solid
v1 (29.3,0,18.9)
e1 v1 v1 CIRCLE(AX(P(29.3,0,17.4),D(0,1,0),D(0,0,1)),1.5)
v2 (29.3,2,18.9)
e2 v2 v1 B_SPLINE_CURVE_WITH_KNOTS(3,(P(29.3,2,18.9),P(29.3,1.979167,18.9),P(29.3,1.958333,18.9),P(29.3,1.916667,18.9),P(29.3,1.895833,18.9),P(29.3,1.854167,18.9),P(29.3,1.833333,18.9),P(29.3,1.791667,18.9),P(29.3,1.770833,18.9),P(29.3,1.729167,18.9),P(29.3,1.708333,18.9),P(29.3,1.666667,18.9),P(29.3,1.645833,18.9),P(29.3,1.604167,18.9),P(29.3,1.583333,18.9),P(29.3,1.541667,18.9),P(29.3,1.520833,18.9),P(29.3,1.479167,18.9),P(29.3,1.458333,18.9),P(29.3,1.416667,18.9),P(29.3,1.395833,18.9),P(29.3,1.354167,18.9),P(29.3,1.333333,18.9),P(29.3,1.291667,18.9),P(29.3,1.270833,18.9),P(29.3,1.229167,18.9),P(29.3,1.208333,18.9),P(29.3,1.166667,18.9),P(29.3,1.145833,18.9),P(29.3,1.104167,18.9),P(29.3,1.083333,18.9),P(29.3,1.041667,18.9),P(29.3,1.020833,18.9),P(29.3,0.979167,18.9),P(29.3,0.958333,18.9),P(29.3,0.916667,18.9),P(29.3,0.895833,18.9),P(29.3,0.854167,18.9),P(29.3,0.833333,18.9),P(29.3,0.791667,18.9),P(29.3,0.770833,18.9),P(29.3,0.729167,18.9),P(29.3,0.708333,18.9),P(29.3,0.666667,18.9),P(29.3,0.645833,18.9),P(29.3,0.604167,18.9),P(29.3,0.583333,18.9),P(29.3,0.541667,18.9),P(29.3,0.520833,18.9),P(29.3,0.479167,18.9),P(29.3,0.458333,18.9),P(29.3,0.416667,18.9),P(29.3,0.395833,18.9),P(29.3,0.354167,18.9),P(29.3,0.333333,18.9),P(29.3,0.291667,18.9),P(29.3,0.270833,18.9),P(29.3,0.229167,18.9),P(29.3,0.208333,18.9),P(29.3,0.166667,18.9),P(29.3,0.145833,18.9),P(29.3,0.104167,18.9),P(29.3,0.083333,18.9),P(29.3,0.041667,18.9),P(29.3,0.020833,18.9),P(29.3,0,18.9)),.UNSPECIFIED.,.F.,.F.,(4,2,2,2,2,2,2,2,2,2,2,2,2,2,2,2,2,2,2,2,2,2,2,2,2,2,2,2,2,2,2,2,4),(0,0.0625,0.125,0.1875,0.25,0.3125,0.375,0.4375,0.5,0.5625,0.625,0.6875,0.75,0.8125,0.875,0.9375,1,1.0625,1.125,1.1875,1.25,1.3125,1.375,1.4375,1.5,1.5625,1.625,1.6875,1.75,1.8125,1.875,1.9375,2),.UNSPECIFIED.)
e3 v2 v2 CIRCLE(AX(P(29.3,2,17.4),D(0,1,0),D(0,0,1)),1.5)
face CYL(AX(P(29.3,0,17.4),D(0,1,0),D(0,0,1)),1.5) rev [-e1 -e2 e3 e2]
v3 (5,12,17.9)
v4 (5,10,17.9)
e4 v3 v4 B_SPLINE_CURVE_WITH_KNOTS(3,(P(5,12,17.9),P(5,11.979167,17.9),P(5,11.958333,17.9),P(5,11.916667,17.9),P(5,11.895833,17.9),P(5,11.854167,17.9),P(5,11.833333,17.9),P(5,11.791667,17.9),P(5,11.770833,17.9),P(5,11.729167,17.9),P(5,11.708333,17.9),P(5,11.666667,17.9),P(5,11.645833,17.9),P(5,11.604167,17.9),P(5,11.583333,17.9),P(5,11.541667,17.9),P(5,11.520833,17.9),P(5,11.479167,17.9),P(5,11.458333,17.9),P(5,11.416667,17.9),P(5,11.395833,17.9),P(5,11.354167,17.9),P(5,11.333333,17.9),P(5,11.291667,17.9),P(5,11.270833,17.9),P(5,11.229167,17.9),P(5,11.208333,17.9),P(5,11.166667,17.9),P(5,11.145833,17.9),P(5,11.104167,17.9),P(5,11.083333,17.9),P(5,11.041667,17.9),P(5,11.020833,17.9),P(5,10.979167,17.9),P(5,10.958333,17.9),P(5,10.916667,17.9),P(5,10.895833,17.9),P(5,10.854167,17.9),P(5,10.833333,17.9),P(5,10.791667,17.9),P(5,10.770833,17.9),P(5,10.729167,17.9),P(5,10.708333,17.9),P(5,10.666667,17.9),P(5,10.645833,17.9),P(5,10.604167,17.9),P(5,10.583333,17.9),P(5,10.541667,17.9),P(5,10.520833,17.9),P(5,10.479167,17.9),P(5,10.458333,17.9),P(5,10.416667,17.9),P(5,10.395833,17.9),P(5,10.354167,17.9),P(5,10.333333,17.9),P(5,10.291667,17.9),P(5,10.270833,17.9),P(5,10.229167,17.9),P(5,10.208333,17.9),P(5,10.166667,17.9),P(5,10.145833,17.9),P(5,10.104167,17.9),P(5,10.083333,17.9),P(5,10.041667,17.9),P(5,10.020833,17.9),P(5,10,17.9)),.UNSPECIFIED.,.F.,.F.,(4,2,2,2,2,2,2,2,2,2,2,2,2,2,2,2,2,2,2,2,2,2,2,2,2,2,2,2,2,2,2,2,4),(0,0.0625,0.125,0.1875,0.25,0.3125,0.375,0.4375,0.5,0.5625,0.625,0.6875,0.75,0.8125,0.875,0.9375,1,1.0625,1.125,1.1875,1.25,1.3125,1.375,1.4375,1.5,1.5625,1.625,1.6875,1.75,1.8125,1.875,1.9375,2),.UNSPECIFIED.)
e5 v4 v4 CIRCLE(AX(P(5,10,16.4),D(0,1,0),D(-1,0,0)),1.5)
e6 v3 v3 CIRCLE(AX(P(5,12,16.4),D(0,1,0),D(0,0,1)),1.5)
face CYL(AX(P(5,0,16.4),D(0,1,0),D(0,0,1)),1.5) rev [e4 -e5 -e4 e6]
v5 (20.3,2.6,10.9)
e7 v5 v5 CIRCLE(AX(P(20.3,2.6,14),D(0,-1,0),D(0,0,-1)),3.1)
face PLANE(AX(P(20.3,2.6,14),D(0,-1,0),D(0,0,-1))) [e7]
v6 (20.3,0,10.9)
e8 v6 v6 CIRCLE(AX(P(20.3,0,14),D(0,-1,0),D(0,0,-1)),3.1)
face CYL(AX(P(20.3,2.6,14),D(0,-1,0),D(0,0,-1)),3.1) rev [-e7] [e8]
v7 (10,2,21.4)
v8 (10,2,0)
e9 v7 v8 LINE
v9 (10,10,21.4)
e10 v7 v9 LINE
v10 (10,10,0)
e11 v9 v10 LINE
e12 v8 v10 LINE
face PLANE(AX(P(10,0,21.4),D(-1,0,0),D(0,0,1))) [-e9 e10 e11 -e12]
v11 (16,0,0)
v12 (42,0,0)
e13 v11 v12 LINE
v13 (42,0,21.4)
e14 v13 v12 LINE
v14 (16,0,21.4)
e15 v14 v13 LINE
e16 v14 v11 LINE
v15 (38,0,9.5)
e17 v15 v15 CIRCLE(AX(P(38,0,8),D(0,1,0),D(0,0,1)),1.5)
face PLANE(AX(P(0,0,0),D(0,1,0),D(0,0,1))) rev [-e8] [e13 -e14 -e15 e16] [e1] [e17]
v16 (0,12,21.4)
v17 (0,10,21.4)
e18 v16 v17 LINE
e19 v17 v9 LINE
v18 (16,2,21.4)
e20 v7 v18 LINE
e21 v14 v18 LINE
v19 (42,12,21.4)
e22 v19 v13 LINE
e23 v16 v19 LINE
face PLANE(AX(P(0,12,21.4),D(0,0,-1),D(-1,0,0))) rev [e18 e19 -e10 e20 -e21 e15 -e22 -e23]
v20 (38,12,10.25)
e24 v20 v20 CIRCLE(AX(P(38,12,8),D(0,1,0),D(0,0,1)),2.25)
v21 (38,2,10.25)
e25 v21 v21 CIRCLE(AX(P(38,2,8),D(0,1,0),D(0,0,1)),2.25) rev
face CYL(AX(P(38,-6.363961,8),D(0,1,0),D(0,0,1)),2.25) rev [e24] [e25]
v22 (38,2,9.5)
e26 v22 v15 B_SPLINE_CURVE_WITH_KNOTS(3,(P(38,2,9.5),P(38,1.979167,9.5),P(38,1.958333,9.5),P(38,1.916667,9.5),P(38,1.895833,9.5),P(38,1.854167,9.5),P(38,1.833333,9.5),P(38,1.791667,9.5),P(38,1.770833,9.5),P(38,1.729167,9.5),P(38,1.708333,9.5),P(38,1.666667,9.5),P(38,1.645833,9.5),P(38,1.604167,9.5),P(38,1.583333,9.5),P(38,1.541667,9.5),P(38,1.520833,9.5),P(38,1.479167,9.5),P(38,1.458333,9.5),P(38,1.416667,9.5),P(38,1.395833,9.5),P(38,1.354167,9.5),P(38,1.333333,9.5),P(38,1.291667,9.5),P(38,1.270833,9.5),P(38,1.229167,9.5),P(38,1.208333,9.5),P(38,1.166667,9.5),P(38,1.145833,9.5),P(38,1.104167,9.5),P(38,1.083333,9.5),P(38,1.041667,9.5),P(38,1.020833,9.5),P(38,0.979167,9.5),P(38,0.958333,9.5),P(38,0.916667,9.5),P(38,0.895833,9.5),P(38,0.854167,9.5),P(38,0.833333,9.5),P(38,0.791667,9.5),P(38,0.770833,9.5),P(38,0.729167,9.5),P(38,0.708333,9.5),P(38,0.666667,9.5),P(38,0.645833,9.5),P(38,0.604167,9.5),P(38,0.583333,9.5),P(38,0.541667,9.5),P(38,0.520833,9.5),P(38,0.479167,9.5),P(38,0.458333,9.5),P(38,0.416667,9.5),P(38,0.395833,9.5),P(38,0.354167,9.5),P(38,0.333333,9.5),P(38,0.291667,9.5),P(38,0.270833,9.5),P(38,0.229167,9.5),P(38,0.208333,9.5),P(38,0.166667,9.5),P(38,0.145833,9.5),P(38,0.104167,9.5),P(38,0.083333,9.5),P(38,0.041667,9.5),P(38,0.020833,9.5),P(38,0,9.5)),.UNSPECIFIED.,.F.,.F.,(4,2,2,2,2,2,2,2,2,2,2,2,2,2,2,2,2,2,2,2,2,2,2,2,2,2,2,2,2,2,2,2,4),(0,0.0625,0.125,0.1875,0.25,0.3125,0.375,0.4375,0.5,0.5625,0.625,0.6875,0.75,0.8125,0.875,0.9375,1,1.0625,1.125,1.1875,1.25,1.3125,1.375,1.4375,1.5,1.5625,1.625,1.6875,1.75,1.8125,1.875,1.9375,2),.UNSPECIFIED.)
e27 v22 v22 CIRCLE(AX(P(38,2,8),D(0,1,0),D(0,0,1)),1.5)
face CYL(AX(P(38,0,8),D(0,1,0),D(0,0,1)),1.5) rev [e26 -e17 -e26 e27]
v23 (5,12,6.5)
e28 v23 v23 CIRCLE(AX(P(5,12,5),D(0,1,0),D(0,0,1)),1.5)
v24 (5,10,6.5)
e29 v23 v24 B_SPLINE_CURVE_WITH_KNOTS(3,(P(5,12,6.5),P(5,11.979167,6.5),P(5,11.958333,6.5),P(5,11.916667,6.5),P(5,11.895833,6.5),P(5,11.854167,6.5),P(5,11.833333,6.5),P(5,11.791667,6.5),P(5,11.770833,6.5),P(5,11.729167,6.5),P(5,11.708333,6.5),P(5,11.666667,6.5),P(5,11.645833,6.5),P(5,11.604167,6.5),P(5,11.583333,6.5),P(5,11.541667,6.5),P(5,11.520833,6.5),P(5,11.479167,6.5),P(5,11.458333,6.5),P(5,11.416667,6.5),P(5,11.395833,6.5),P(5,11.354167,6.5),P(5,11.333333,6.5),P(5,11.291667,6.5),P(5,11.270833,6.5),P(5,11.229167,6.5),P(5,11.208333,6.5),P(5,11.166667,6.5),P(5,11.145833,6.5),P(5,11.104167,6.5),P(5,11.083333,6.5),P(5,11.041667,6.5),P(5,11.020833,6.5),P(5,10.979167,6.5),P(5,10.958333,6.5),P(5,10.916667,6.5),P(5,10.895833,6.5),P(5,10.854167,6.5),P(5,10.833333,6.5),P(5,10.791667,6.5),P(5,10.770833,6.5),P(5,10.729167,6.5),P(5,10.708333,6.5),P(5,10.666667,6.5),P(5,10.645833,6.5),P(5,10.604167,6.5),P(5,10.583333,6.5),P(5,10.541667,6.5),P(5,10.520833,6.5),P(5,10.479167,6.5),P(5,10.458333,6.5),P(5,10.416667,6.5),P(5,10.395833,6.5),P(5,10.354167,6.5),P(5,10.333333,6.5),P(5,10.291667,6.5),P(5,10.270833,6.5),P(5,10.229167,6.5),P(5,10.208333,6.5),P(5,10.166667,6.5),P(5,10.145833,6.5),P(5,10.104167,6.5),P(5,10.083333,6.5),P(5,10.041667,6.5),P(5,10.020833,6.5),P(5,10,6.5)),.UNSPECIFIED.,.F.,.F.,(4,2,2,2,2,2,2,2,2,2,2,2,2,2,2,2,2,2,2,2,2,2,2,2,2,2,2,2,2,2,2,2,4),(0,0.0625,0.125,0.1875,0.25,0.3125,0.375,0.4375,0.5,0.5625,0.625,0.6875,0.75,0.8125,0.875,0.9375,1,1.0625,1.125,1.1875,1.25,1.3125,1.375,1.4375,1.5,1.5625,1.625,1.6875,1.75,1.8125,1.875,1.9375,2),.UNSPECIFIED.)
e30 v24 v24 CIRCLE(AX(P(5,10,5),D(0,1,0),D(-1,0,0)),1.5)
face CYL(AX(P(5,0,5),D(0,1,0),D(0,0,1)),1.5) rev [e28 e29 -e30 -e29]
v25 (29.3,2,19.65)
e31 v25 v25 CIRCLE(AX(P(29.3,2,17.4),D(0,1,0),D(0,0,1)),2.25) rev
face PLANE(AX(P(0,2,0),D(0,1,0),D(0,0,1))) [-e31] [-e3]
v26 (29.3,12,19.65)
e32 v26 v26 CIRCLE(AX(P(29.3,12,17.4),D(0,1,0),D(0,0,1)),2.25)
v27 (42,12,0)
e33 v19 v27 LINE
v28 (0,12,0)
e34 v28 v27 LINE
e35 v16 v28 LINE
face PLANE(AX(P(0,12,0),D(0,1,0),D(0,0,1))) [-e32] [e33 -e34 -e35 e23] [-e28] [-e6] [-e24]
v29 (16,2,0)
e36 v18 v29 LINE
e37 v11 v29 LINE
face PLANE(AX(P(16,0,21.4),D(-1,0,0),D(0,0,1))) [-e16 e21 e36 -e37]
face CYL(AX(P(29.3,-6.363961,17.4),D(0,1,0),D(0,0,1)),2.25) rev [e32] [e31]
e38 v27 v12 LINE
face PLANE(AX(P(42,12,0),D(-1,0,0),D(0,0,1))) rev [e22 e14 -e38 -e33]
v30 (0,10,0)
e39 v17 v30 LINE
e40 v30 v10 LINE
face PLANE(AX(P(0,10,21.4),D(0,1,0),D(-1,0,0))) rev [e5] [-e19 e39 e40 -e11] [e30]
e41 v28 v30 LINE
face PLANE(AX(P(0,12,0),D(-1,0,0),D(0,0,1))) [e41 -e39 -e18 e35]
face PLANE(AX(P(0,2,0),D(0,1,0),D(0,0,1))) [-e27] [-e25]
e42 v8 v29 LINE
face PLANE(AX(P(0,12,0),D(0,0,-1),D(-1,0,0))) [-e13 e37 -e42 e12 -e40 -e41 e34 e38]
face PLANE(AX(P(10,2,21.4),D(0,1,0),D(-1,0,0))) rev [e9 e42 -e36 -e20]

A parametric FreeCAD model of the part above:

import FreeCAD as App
import Part
import Sketcher
Q = App.Units.Quantity

doc = App.newDocument("Part")
body = doc.addObject("PartDesign::Body", "Body")

# Sketch on XZ plane
sketch1 = body.newObject("Sketcher::SketchObject", "Sketch")
sketch1.AttachmentSupport = (doc.getObject("XZ_Plane"), [""])
sketch1.MapMode = "FlatFace"
sketch1.addGeometry([
    Part.LineSegment(App.Vector(0, 0, 0), App.Vector(0, 21, 0)),
    Part.LineSegment(App.Vector(0, 21, 0), App.Vector(42, 21, 0)),
    Part.LineSegment(App.Vector(42, 21, 0), App.Vector(42, 0, 0)),
    Part.LineSegment(App.Vector(42, 0, 0), App.Vector(0, 0, 0)),
], False)
sketch1.addConstraint([
    Sketcher.Constraint("Coincident", 0, 2, 1, 1),
    Sketcher.Constraint("Coincident", 1, 2, 2, 1),
    Sketcher.Constraint("Coincident", 2, 2, 3, 1),
    Sketcher.Constraint("Coincident", 3, 2, 0, 1),
    Sketcher.Constraint("Vertical", 0),
    Sketcher.Constraint("Horizontal", 1),
    Sketcher.Constraint("Vertical", 2),
    Sketcher.Constraint("Horizontal", 3),
    Sketcher.Constraint("Coincident", 3, 2, -1, 1),
    Sketcher.Constraint("DistanceX", 1, 1, 1, 2, Q("42 mm")),
    Sketcher.Constraint("DistanceY", 0, 1, 0, 2, Q("21.4 mm")),
])
pad1 = body.newObject("PartDesign::Pad", "Pad")
pad1.Profile = sketch1
pad1.Length = 12
pad1.Reversed = True

# Sketch on XY plane
sketch2 = body.newObject("Sketcher::SketchObject", "Sketch001")
sketch2.AttachmentSupport = (doc.getObject("XY_Plane"), [""])
sketch2.MapMode = "FlatFace"
sketch2.addGeometry([
    Part.LineSegment(App.Vector(0, 0, 0), App.Vector(0, 10, 0)),  # 0
    Part.LineSegment(App.Vector(0, 10, 0), App.Vector(10, 10, 0)),  # 1
    Part.LineSegment(App.Vector(10, 10, 0), App.Vector(10, 2, 0)),  # 2
    Part.LineSegment(App.Vector(10, 2, 0), App.Vector(16, 2, 0)),  # 3
    Part.LineSegment(App.Vector(16, 2, 0), App.Vector(16, 0, 0)),  # 4
    Part.LineSegment(App.Vector(16, 0, 0), App.Vector(0, 0, 0)),  # 5
], False)
sketch2.addConstraint([
    Sketcher.Constraint("Coincident", 0, 2, 1, 1),
    Sketcher.Constraint("Coincident", 1, 2, 2, 1),
    Sketcher.Constraint("Coincident", 2, 2, 3, 1),
    Sketcher.Constraint("Coincident", 3, 2, 4, 1),
    Sketcher.Constraint("Coincident", 4, 2, 5, 1),
    Sketcher.Constraint("Coincident", 5, 2, 0, 1),
    Sketcher.Constraint("Vertical", 0),
    Sketcher.Constraint("Horizontal", 1),
    Sketcher.Constraint("Vertical", 2),
    Sketcher.Constraint("Horizontal", 3),
    Sketcher.Constraint("Vertical", 4),
    Sketcher.Constraint("Horizontal", 5),
    Sketcher.Constraint("Coincident", 5, 2, -1, 1),
    Sketcher.Constraint("Equal", 1, 0),
    Sketcher.Constraint("DistanceX", 1, 1, 1, 2, Q("10 mm")),
    Sketcher.Constraint("DistanceX", 3, 1, 3, 2, Q("6 mm")),
    Sketcher.Constraint("DistanceY", 2, 2, 2, 1, Q("8 mm")),
])
pocket1 = body.newObject("PartDesign::Pocket", "Pocket")
pocket1.Profile = sketch2
pocket1.Type = "ThroughAll"
pocket1.Reversed = True

# Sketch on XZ plane
sketch3 = body.newObject("Sketcher::SketchObject", "Sketch002")
sketch3.AttachmentSupport = (doc.getObject("XZ_Plane"), [""])
sketch3.MapMode = "FlatFace"
sketch3.addGeometry(Part.Circle(App.Vector(20.3, 14, 0), App.Vector(0, 0, 1), 3.1), False)
sketch3.addConstraint([
    Sketcher.Constraint("Diameter", 0, Q("6.2 mm")),
    Sketcher.Constraint("DistanceY", -1, 1, 0, 3, Q("14 mm")),
    Sketcher.Constraint("DistanceX", -1, 1, 0, 3, Q("20.3 mm")),
])
pocket2 = body.newObject("PartDesign::Pocket", "Pocket001")
pocket2.Profile = sketch3
pocket2.Length = 2.6

# Sketch on XZ plane
sketch4 = body.newObject("Sketcher::SketchObject", "Sketch003")
sketch4.AttachmentSupport = (doc.getObject("XZ_Plane"), [""])
sketch4.MapMode = "FlatFace"
sketch4.AttachmentOffset = App.Placement(App.Vector(0, 0, -12), App.Rotation())
sketch4.addGeometry([
    Part.Circle(App.Vector(29.3, 17.4, 0), App.Vector(0, 0, 1), 2.2),
    Part.Circle(App.Vector(38, 8, 0), App.Vector(0, 0, 1), 2.2),
], False)
sketch4.addConstraint([
    Sketcher.Constraint("Equal", 0, 1),
    Sketcher.Constraint("Diameter", 0, Q("4.5 mm")),
    Sketcher.Constraint("DistanceX", -1, 1, 1, 3, Q("38 mm")),
    Sketcher.Constraint("DistanceY", -1, 1, 1, 3, Q("8 mm")),
    Sketcher.Constraint("DistanceX", -1, 1, 0, 3, Q("29.3 mm")),
    Sketcher.Constraint("DistanceY", -1, 1, 0, 3, Q("17.4 mm")),
])
pocket3 = body.newObject("PartDesign::Pocket", "Pocket002")
pocket3.Profile = sketch4
pocket3.Length = 10
pocket3.Reversed = True

# Sketch on XZ plane
sketch5 = body.newObject("Sketcher::SketchObject", "Sketch004")
sketch5.AttachmentSupport = (doc.getObject("XZ_Plane"), [""])
sketch5.MapMode = "FlatFace"
sketch5.AttachmentOffset = App.Placement(App.Vector(0, 0, -12), App.Rotation())
sketch5.addGeometry([
    Part.Circle(App.Vector(5, 5, 0), App.Vector(0, 0, 1), 1.5),
    Part.Circle(App.Vector(5, 16.4, 0), App.Vector(0, 0, 1), 1.5),
    Part.Circle(App.Vector(38, 8, 0), App.Vector(0, 0, 1), 1.5),
    Part.Circle(App.Vector(29.3, 17.4, 0), App.Vector(0, 0, 1), 1.5),
], False)
sketch5.addConstraint([
    Sketcher.Constraint("Equal", 0, 1),
    Sketcher.Constraint("Equal", 1, 2),
    Sketcher.Constraint("Equal", 2, 3),
    Sketcher.Constraint("Vertical", 0, 3, 1, 3),
    Sketcher.Constraint("Diameter", 0, Q("3 mm")),
    Sketcher.Constraint("DistanceX", -1, 1, 0, 3, Q("5 mm")),
    Sketcher.Constraint("DistanceY", -1, 1, 0, 3, Q("5 mm")),
    Sketcher.Constraint("DistanceX", -1, 1, 2, 3, Q("38 mm")),
    Sketcher.Constraint("DistanceY", -1, 1, 2, 3, Q("8 mm")),
    Sketcher.Constraint("DistanceY", 1, 3, 3, 3, Q("1 mm")),
    Sketcher.Constraint("DistanceY", -1, 1, 1, 3, Q("16.4 mm")),
    Sketcher.Constraint("DistanceX", -1, 1, 3, 3, Q("29.3 mm")),
])
pocket4 = body.newObject("PartDesign::Pocket", "Pocket003")
pocket4.Profile = sketch5
pocket4.Type = "ThroughAll"
pocket4.Reversed = True

doc.recompute()
